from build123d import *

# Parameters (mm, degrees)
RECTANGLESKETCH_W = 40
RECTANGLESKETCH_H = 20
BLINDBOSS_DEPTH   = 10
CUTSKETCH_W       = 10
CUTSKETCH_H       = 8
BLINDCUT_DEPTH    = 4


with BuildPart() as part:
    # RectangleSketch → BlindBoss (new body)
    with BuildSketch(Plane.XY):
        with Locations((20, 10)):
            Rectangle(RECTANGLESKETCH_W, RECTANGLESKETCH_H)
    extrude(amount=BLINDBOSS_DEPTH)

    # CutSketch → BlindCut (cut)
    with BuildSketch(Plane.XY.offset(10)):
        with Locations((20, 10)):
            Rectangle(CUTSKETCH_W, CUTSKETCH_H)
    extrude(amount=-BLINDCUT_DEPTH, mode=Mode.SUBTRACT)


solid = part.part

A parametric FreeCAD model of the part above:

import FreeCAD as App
import Part
import Sketcher
Q = App.Units.Quantity

doc = App.newDocument("Part")
params = doc.addObject("Spreadsheet::Sheet", "Params")
for row, (alias, value) in enumerate([
    ("sketch1_width", "40 mm"),
    ("sketch1_height", "20 mm"),
    ("pad1_length", "10 mm"),
    ("sketch2_width", "10 mm"),
    ("sketch2_height", "8 mm"),
    ("pocket1_length", "4 mm"),
], start=1):
    params.set(f"A{row}", alias)
    params.set(f"B{row}", "=" + value)
    params.setAlias(f"B{row}", alias)

body = doc.addObject("PartDesign::Body", "Body")

# Sketch on XY plane
sketch1 = doc.addObject("Sketcher::SketchObject", "Sketch")
body.addObject(sketch1)
sketch1.AttachmentSupport = (doc.XY_Plane, [""])
sketch1.MapMode = "FlatFace"
sketch1.addGeometry(Part.LineSegment(App.Vector(0, 20, 0), App.Vector(0, 0, 0)), False)
sketch1.addGeometry(Part.LineSegment(App.Vector(0, 0, 0), App.Vector(40, 0, 0)), False)
sketch1.addGeometry(Part.LineSegment(App.Vector(40, 0, 0), App.Vector(40, 20, 0)), False)
sketch1.addGeometry(Part.LineSegment(App.Vector(40, 20, 0), App.Vector(0, 20, 0)), False)
sketch1.addConstraint(Sketcher.Constraint("Coincident", 0, 2, 1, 1))
sketch1.addConstraint(Sketcher.Constraint("Coincident", 1, 2, 2, 1))
sketch1.addConstraint(Sketcher.Constraint("Coincident", 2, 2, 3, 1))
sketch1.addConstraint(Sketcher.Constraint("Coincident", 3, 2, 0, 1))
sketch1.addConstraint(Sketcher.Constraint("Vertical", 0))
sketch1.addConstraint(Sketcher.Constraint("Horizontal", 1))
sketch1.addConstraint(Sketcher.Constraint("Vertical", 2))
sketch1.addConstraint(Sketcher.Constraint("Horizontal", 3))
sketch1.addConstraint(Sketcher.Constraint("Coincident", 0, 2, -1, 1))
sketch1.addConstraint(Sketcher.Constraint("DistanceX", 1, 1, 1, 2, Q("40 mm")))
sketch1.addConstraint(Sketcher.Constraint("DistanceY", 0, 2, 0, 1, Q("20 mm")))
sketch1.setExpression("Constraints[9]", "Params.sketch1_width")
sketch1.setExpression("Constraints[10]", "Params.sketch1_height")
pad1 = doc.addObject("PartDesign::Pad", "Pad")
body.addObject(pad1)
pad1.Profile = sketch1
pad1.setExpression("Length", "Params.pad1_length")

# Sketch on XY plane
sketch2 = doc.addObject("Sketcher::SketchObject", "Sketch001")
body.addObject(sketch2)
sketch2.AttachmentSupport = (doc.XY_Plane, [""])
sketch2.MapMode = "FlatFace"
sketch2.AttachmentOffset = App.Placement(App.Vector(0, 0, 10), App.Rotation())
sketch2.addGeometry(Part.LineSegment(App.Vector(15, 14, 0), App.Vector(15, 6, 0)), False)
sketch2.addGeometry(Part.LineSegment(App.Vector(15, 6, 0), App.Vector(25, 6, 0)), False)
sketch2.addGeometry(Part.LineSegment(App.Vector(25, 6, 0), App.Vector(25, 14, 0)), False)
sketch2.addGeometry(Part.LineSegment(App.Vector(25, 14, 0), App.Vector(15, 14, 0)), False)
sketch2.addConstraint(Sketcher.Constraint("Coincident", 0, 2, 1, 1))
sketch2.addConstraint(Sketcher.Constraint("Coincident", 1, 2, 2, 1))
sketch2.addConstraint(Sketcher.Constraint("Coincident", 2, 2, 3, 1))
sketch2.addConstraint(Sketcher.Constraint("Coincident", 3, 2, 0, 1))
sketch2.addConstraint(Sketcher.Constraint("Vertical", 0))
sketch2.addConstraint(Sketcher.Constraint("Horizontal", 1))
sketch2.addConstraint(Sketcher.Constraint("Vertical", 2))
sketch2.addConstraint(Sketcher.Constraint("Horizontal", 3))
sketch2.addConstraint(Sketcher.Constraint("DistanceX", 1, 1, 1, 2, Q("10 mm")))
sketch2.addConstraint(Sketcher.Constraint("DistanceY", 0, 2, 0, 1, Q("8 mm")))
sketch2.addConstraint(Sketcher.Constraint("DistanceX", -1, 1, 0, 2, Q("15 mm")))
sketch2.addConstraint(Sketcher.Constraint("DistanceY", -1, 1, 0, 2, Q("6 mm")))
sketch2.setExpression("Constraints[8]", "Params.sketch2_width")
sketch2.setExpression("Constraints[9]", "Params.sketch2_height")
pocket1 = doc.addObject("PartDesign::Pocket", "Pocket")
body.addObject(pocket1)
pocket1.Profile = sketch2
pocket1.setExpression("Length", "Params.pocket1_length")

doc.recompute()
